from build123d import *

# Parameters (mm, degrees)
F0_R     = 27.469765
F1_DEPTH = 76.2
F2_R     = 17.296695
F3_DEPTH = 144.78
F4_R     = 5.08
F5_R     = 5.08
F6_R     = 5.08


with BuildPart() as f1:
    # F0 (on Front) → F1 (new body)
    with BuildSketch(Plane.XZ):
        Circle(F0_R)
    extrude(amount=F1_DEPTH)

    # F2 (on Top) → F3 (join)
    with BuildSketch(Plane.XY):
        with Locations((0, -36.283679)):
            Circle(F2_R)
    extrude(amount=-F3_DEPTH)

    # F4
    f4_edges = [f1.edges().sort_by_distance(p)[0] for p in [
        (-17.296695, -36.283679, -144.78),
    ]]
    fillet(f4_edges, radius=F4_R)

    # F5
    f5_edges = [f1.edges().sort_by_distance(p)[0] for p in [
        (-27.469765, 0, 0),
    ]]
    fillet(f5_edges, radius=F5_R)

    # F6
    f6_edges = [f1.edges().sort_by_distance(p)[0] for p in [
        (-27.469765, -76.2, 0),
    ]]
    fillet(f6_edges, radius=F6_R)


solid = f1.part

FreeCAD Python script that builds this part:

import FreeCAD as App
import Part
import Sketcher

V = App.Vector
Q = App.Units.Quantity


def edges_at(feature, points):
    """Names of the edges that pass closest to the given points."""
    edges = feature.Shape.Edges
    near = lambda p: min(range(len(edges)), key=lambda i: edges[i].distToShape(Part.Vertex(*p))[0])
    return sorted({f"Edge{near(p) + 1}" for p in points})

doc = App.newDocument("Part")
body = doc.addObject("PartDesign::Body", "Body")

# Sketch on XZ plane
sketch1 = doc.addObject("Sketcher::SketchObject", "Sketch")
body.addObject(sketch1)
sketch1.AttachmentSupport = (doc.XZ_Plane, [""])
sketch1.MapMode = "FlatFace"
sketch1.addGeometry(Part.Circle(V(0, 0, 0), V(0, 0, 1), 27), False)
sketch1.addConstraint(Sketcher.Constraint("Coincident", 0, 3, -1, 1))
sketch1.addConstraint(Sketcher.Constraint("Diameter", 0, Q("54.93953 mm")))
pad1 = doc.addObject("PartDesign::Pad", "Pad")
body.addObject(pad1)
pad1.Profile = sketch1
pad1.Length = Q("3 in")

# Sketch on XY plane
sketch2 = doc.addObject("Sketcher::SketchObject", "Sketch001")
body.addObject(sketch2)
sketch2.AttachmentSupport = (doc.XY_Plane, [""])
sketch2.MapMode = "FlatFace"
sketch2.addGeometry(Part.Circle(V(0, -36, 0), V(0, 0, 1), 17), False)
sketch2.addConstraint(Sketcher.Constraint("PointOnObject", 0, 3, -2))
sketch2.addConstraint(Sketcher.Constraint("Diameter", 0, Q("34.59339 mm")))
sketch2.addConstraint(Sketcher.Constraint("DistanceY", 0, 3, -1, 1, Q("36.283679 mm")))
pad2 = doc.addObject("PartDesign::Pad", "Pad001")
body.addObject(pad2)
pad2.Profile = sketch2
pad2.Length = Q("5.7 in")
pad2.Reversed = True
doc.recompute()

fillet = doc.addObject("PartDesign::Fillet", "Fillet")
body.addObject(fillet)
fillet.Base = (pad2, edges_at(pad2, [(-17.297, -36.284, -144.78)]))
fillet.Radius = Q("0.2 in")
doc.recompute()

fillet2 = doc.addObject("PartDesign::Fillet", "Fillet001")
body.addObject(fillet2)
fillet2.Base = (fillet, edges_at(fillet, [(-27.47, 0, 0)]))
fillet2.Radius = Q("0.2 in")
doc.recompute()

fillet3 = doc.addObject("PartDesign::Fillet", "Fillet002")
body.addObject(fillet3)
fillet3.Base = (fillet2, edges_at(fillet2, [(-27.47, -76.2, 0)]))
fillet3.Radius = Q("0.2 in")

doc.recompute()
